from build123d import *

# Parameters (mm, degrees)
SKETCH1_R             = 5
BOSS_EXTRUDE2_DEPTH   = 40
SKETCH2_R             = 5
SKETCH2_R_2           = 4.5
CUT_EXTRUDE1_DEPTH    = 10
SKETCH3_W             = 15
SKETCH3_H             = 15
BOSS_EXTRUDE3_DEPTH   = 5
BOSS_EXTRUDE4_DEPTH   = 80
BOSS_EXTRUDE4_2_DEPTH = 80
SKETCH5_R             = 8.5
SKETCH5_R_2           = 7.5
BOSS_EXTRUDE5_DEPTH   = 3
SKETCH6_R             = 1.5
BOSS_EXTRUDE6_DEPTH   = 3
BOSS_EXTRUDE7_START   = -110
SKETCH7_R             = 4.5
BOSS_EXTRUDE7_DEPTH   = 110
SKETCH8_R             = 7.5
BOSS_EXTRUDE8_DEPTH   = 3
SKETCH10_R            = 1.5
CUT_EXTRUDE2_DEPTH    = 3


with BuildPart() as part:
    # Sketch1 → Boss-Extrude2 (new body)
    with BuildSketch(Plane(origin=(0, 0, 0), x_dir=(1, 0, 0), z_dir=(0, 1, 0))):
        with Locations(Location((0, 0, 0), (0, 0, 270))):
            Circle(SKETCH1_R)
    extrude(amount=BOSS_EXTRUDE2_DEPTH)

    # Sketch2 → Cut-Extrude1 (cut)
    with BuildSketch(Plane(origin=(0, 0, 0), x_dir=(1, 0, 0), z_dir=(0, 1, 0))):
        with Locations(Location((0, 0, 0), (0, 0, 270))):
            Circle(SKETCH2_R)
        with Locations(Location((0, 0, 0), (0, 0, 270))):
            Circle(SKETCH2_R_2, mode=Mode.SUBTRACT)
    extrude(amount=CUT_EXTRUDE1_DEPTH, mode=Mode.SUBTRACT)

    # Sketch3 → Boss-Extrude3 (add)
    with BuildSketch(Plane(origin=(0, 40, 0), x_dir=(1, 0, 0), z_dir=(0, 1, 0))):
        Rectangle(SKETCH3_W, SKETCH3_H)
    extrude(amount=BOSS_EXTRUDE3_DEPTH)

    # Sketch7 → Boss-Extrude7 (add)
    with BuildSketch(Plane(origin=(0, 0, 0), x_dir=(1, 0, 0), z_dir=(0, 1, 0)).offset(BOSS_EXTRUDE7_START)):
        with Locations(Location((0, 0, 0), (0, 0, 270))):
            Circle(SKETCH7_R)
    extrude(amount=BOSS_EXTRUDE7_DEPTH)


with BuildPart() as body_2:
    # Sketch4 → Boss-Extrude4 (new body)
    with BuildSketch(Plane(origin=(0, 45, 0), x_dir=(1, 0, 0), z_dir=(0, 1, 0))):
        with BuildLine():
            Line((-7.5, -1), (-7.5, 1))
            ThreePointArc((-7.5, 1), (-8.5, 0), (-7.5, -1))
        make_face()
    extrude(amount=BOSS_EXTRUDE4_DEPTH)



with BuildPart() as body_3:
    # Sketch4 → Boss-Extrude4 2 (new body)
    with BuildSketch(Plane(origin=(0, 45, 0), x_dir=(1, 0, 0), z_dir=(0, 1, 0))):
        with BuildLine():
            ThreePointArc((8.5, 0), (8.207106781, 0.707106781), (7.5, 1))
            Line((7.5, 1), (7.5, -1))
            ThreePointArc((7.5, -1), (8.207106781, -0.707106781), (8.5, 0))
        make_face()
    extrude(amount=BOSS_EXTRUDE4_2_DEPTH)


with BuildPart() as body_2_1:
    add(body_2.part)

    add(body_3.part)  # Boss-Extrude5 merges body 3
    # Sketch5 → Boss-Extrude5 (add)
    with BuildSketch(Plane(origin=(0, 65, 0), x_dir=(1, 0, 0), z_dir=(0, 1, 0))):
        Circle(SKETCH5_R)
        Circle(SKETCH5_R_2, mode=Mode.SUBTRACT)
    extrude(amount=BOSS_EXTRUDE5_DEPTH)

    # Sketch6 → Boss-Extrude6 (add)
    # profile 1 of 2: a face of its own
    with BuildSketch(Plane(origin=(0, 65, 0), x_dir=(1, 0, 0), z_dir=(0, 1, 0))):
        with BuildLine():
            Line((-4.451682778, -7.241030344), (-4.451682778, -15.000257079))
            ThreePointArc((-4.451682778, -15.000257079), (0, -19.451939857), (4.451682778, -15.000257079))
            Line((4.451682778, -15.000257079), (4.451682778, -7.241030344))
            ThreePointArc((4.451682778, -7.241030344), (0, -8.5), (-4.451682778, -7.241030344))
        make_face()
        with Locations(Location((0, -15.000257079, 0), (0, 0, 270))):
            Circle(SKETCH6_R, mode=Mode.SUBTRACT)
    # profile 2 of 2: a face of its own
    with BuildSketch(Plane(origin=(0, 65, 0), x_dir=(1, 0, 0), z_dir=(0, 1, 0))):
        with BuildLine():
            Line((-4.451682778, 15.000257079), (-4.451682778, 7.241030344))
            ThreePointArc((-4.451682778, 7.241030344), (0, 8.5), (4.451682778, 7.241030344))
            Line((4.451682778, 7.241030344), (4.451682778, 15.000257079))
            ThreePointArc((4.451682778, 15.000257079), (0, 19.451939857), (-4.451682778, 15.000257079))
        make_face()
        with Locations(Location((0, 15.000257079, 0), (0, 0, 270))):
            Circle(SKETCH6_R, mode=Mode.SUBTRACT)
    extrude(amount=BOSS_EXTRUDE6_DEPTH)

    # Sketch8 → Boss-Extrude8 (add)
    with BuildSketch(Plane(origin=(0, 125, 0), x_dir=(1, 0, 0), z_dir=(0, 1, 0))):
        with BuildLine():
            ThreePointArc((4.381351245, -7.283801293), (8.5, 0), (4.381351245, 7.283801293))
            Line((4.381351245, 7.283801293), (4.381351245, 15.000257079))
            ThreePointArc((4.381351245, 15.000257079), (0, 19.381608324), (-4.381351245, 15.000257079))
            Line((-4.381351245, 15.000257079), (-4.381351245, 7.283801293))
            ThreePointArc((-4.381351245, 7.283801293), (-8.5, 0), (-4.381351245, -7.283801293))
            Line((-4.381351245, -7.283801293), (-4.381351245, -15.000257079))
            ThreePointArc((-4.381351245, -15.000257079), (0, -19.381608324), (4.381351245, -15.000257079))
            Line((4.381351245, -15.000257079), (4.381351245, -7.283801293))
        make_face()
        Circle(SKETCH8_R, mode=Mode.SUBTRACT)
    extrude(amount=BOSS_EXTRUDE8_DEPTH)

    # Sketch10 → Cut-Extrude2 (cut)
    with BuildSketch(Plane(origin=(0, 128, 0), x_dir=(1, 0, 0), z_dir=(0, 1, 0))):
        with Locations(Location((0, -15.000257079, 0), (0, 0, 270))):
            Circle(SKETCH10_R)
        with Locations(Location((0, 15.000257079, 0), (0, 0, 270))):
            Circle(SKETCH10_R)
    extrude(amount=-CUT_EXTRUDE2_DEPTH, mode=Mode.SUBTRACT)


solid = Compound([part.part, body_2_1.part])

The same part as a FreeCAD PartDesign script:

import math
import FreeCAD as App
import Part
import Sketcher
Q = App.Units.Quantity


def add_polygon(sketch, points):
    """Adds a closed chain of lines whose ends are joined by coincident constraints."""
    first, n = sketch.GeometryCount, len(points)
    for a, b in zip(points, points[1:] + points[:1]):
        sketch.addGeometry(Part.LineSegment(App.Vector(*a, 0), App.Vector(*b, 0)), False)
    for i in range(n):
        sketch.addConstraint(Sketcher.Constraint("Coincident", first + i, 2, first + (i + 1) % n, 1))

doc = App.newDocument("Part")
params = doc.addObject("Spreadsheet::Sheet", "Params")
for row, (alias, value) in enumerate([
    ("sketch1_diameter", "10 mm"),
    ("pad1_length", "40 mm"),
    ("sketch2_diameter", "10 mm"),
    ("sketch2_diameter2", "9 mm"),
    ("pocket1_length", "10 mm"),
    ("sketch3_width", "15 mm"),
    ("pad2_length", "5 mm"),
    ("sketch4_diameter", "9 mm"),
    ("pad3_length", "110 mm"),
    ("sketch5_radius", "1 mm"),
    ("pad4_length", "80 mm"),
    ("sketch6_radius", "1 mm"),
    ("pad5_length", "80 mm"),
    ("sketch7_diameter", "17 mm"),
    ("sketch7_diameter2", "15 mm"),
    ("pad6_length", "3 mm"),
    ("sketch8_diameter", "3 mm"),
    ("sketch8_radius", "8.5 mm"),
    ("pad7_length", "3 mm"),
    ("sketch9_diameter", "15 mm"),
    ("sketch9_radius", "8.5 mm"),
    ("pad8_length", "3 mm"),
    ("sketch10_diameter", "3 mm"),
    ("pocket2_length", "3 mm"),
], start=1):
    params.set(f"A{row}", alias)
    params.set(f"B{row}", "=" + value)
    params.setAlias(f"B{row}", alias)

body = doc.addObject("PartDesign::Body", "Body")

sketch1 = body.newObject("Sketcher::SketchObject", "Sketch")
sketch1.AttachmentSupport = (doc.getObject("XZ_Plane"), [""])
sketch1.MapMode = "FlatFace"
sketch1.addGeometry(Part.Circle(App.Vector(0, 0, 0), App.Vector(0, 0, 1), 5), False)
sketch1.addConstraint([
    Sketcher.Constraint("Coincident", 0, 3, -1, 1),
    Sketcher.Constraint("Diameter", 0, Q("10 mm")),
])
sketch1.setExpression("Constraints[1]", "Params.sketch1_diameter")
pad1 = body.newObject("PartDesign::Pad", "Pad")
pad1.Profile = sketch1
pad1.setExpression("Length", "Params.pad1_length")
pad1.Reversed = True

sketch2 = body.newObject("Sketcher::SketchObject", "Sketch001")
sketch2.AttachmentSupport = (doc.getObject("XZ_Plane"), [""])
sketch2.MapMode = "FlatFace"
sketch2.addGeometry([
    Part.Circle(App.Vector(0, 0, 0), App.Vector(0, 0, 1), 5),
    Part.Circle(App.Vector(0, 0, 0), App.Vector(0, 0, 1), 4.5),
], False)
sketch2.addConstraint([
    Sketcher.Constraint("Coincident", 0, 3, -1, 1),
    Sketcher.Constraint("Coincident", 1, 3, -1, 1),
    Sketcher.Constraint("Diameter", 0, Q("10 mm")),
    Sketcher.Constraint("Diameter", 1, Q("9 mm")),
])
sketch2.setExpression("Constraints[2]", "Params.sketch2_diameter")
sketch2.setExpression("Constraints[3]", "Params.sketch2_diameter2")
pocket1 = body.newObject("PartDesign::Pocket", "Pocket")
pocket1.Profile = sketch2
pocket1.setExpression("Length", "Params.pocket1_length")

sketch3 = body.newObject("Sketcher::SketchObject", "Sketch002")
sketch3.AttachmentSupport = (doc.getObject("XZ_Plane"), [""])
sketch3.MapMode = "FlatFace"
sketch3.AttachmentOffset = App.Placement(App.Vector(0, 0, -40), App.Rotation())
add_polygon(sketch3, [(-8, -8), (-8, 8), (8, 8), (8, -8)])
sketch3.addConstraint([
    Sketcher.Constraint("Vertical", 0),
    Sketcher.Constraint("Horizontal", 1),
    Sketcher.Constraint("Vertical", 2),
    Sketcher.Constraint("Horizontal", 3),
    Sketcher.Constraint("Symmetric", 0, 2, 2, 2, -1, 1),
    Sketcher.Constraint("Equal", 3, 0),
    Sketcher.Constraint("DistanceX", 1, 1, 1, 2, Q("15 mm")),
])
sketch3.setExpression("Constraints[10]", "Params.sketch3_width")
pad2 = body.newObject("PartDesign::Pad", "Pad001")
pad2.Profile = sketch3
pad2.setExpression("Length", "Params.pad2_length")
pad2.Reversed = True

sketch4 = body.newObject("Sketcher::SketchObject", "Sketch003")
sketch4.AttachmentSupport = (doc.getObject("XZ_Plane"), [""])
sketch4.MapMode = "FlatFace"
sketch4.AttachmentOffset = App.Placement(App.Vector(0, 0, 110), App.Rotation())
sketch4.addGeometry(Part.Circle(App.Vector(0, 0, 0), App.Vector(0, 0, 1), 4.5), False)
sketch4.addConstraint([
    Sketcher.Constraint("Coincident", 0, 3, -1, 1),
    Sketcher.Constraint("Diameter", 0, Q("9 mm")),
])
sketch4.setExpression("Constraints[1]", "Params.sketch4_diameter")
pad3 = body.newObject("PartDesign::Pad", "Pad002")
pad3.Profile = sketch4
pad3.setExpression("Length", "Params.pad3_length")
pad3.Reversed = True
body2 = doc.addObject("PartDesign::Body", "Body001")

sketch5 = body2.newObject("Sketcher::SketchObject", "Sketch004")
sketch5.AttachmentSupport = (doc.getObject("XZ_Plane001"), [""])
sketch5.MapMode = "FlatFace"
sketch5.AttachmentOffset = App.Placement(App.Vector(0, 0, -45), App.Rotation())
sketch5.addGeometry([
    Part.LineSegment(App.Vector(-7.5, 1, 0), App.Vector(-7.5, -1, 0)),
    Part.ArcOfCircle(Part.Circle(App.Vector(-7.5, 0, 0), App.Vector(0, 0, 1), 1), math.radians(90), math.radians(270)),
], False)
sketch5.addConstraint([
    Sketcher.Constraint("Coincident", 0, 1, 1, 1),
    Sketcher.Constraint("Coincident", 1, 2, 0, 2),
    Sketcher.Constraint("Vertical", 0),
    Sketcher.Constraint("PointOnObject", 1, 3, -1),
    Sketcher.Constraint("Vertical", 1, 3, 0, 1),
    Sketcher.Constraint("Radius", 1, Q("1 mm")),
    Sketcher.Constraint("DistanceX", 1, 3, -1, 1, Q("7.5 mm")),
])
sketch5.setExpression("Constraints[5]", "Params.sketch5_radius")
pad4 = body2.newObject("PartDesign::Pad", "Pad003")
pad4.Profile = sketch5
pad4.setExpression("Length", "Params.pad4_length")
pad4.Reversed = True
body3 = doc.addObject("PartDesign::Body", "Body002")

sketch6 = body3.newObject("Sketcher::SketchObject", "Sketch005")
sketch6.AttachmentSupport = (doc.getObject("XZ_Plane002"), [""])
sketch6.MapMode = "FlatFace"
sketch6.AttachmentOffset = App.Placement(App.Vector(0, 0, -45), App.Rotation())
sketch6.addGeometry([
    Part.ArcOfCircle(Part.Circle(App.Vector(7.5, 0, 0), App.Vector(0, 0, 1), 1), math.radians(-90), math.radians(0)),
    Part.LineSegment(App.Vector(7.5, -1, 0), App.Vector(7.5, 1, 0)),
    Part.ArcOfCircle(Part.Circle(App.Vector(7.5, 0, 0), App.Vector(0, 0, 1), 1), math.radians(0), math.radians(90)),
], False)
sketch6.addConstraint([
    Sketcher.Constraint("Coincident", 0, 1, 1, 1),
    Sketcher.Constraint("Coincident", 1, 2, 2, 2),
    Sketcher.Constraint("Tangent", 2, 1, 0, 2),
    Sketcher.Constraint("Vertical", 1),
    Sketcher.Constraint("Equal", 0, 2),
    Sketcher.Constraint("PointOnObject", 0, 3, -1),
    Sketcher.Constraint("PointOnObject", 2, 1, -1),
    Sketcher.Constraint("Vertical", 2, 3, 0, 1),
    Sketcher.Constraint("Radius", 0, Q("1 mm")),
    Sketcher.Constraint("DistanceX", -1, 1, 0, 3, Q("7.5 mm")),
])
sketch6.setExpression("Constraints[8]", "Params.sketch6_radius")
pad5 = body3.newObject("PartDesign::Pad", "Pad004")
pad5.Profile = sketch6
pad5.setExpression("Length", "Params.pad5_length")
pad5.Reversed = True
body2.AllowCompound = True
doc.recompute()

boolean = body2.newObject("PartDesign::Boolean", "Boolean")
boolean.Type = "Fuse"
boolean.addObjects([body3])

sketch7 = body2.newObject("Sketcher::SketchObject", "Sketch006")
sketch7.AttachmentSupport = (doc.getObject("XZ_Plane001"), [""])
sketch7.MapMode = "FlatFace"
sketch7.AttachmentOffset = App.Placement(App.Vector(0, 0, -65), App.Rotation())
sketch7.addGeometry([
    Part.Circle(App.Vector(0, 0, 0), App.Vector(0, 0, 1), 8),
    Part.Circle(App.Vector(0, 0, 0), App.Vector(0, 0, 1), 8),
], False)
sketch7.addConstraint([
    Sketcher.Constraint("Coincident", 0, 3, -1, 1),
    Sketcher.Constraint("Coincident", 1, 3, -1, 1),
    Sketcher.Constraint("Diameter", 0, Q("17 mm")),
    Sketcher.Constraint("Diameter", 1, Q("15 mm")),
])
sketch7.setExpression("Constraints[2]", "Params.sketch7_diameter")
sketch7.setExpression("Constraints[3]", "Params.sketch7_diameter2")
pad6 = body2.newObject("PartDesign::Pad", "Pad005")
pad6.Profile = sketch7
pad6.setExpression("Length", "Params.pad6_length")
pad6.Reversed = True

sketch8 = body2.newObject("Sketcher::SketchObject", "Sketch007")
sketch8.AttachmentSupport = (doc.getObject("XZ_Plane001"), [""])
sketch8.MapMode = "FlatFace"
sketch8.AttachmentOffset = App.Placement(App.Vector(0, 0, -65), App.Rotation())
sketch8.addGeometry([
    Part.LineSegment(App.Vector(-4.5, 7.2, 0), App.Vector(-4.5, 15, 0)),
    Part.ArcOfCircle(Part.Circle(App.Vector(0, 15, 0), App.Vector(0, 0, 1), 4.5), math.radians(0), math.radians(180)),
    Part.LineSegment(App.Vector(4.5, 15, 0), App.Vector(4.5, 7.2, 0)),
    Part.ArcOfCircle(Part.Circle(App.Vector(0, 0, 0), App.Vector(0, 0, 1), 8.5), math.radians(58), math.radians(122)),
    Part.Circle(App.Vector(0, 15, 0), App.Vector(0, 0, 1), 1.5),
    Part.LineSegment(App.Vector(-4.5, -15, 0), App.Vector(-4.5, -7.2, 0)),
    Part.ArcOfCircle(Part.Circle(App.Vector(0, 0, 0), App.Vector(0, 0, 1), 8.5), math.radians(-122), math.radians(-58)),
    Part.LineSegment(App.Vector(4.5, -7.2, 0), App.Vector(4.5, -15, 0)),
    Part.ArcOfCircle(Part.Circle(App.Vector(0, -15, 0), App.Vector(0, 0, 1), 4.5), math.radians(180), math.radians(360)),
    Part.Circle(App.Vector(0, -15, 0), App.Vector(0, 0, 1), 1.5),
], False)
sketch8.addConstraint([
    Sketcher.Constraint("Tangent", 0, 2, 1, 2),
    Sketcher.Constraint("Tangent", 1, 1, 2, 1),
    Sketcher.Constraint("Coincident", 2, 2, 3, 1),
    Sketcher.Constraint("Coincident", 3, 2, 0, 1),
    Sketcher.Constraint("Coincident", 5, 2, 6, 1),
    Sketcher.Constraint("Coincident", 6, 2, 7, 1),
    Sketcher.Constraint("Tangent", 7, 2, 8, 2),
    Sketcher.Constraint("Tangent", 8, 1, 5, 1),
    Sketcher.Constraint("Vertical", 0),
    Sketcher.Constraint("Vertical", 2),
    Sketcher.Constraint("Vertical", 5),
    Sketcher.Constraint("Vertical", 7),
    Sketcher.Constraint("Coincident", 3, 3, -1, 1),
    Sketcher.Constraint("Coincident", 6, 3, -1, 1),
    Sketcher.Constraint("Coincident", 4, 3, 1, 3),
    Sketcher.Constraint("Coincident", 9, 3, 8, 3),
    Sketcher.Constraint("Equal", 3, 6),
    Sketcher.Constraint("Equal", 1, 8),
    Sketcher.Constraint("Equal", 4, 9),
    Sketcher.Constraint("Symmetric", 1, 3, 8, 3, -1, 1),
    Sketcher.Constraint("PointOnObject", 1, 3, -2),
    Sketcher.Constraint("Diameter", 4, Q("3 mm")),
    Sketcher.Constraint("Radius", 3, Q("8.5 mm")),
    Sketcher.Constraint("Radius", 1, Q("4.451683 mm")),
    Sketcher.Constraint("DistanceY", 0, 1, 0, 2, Q("7.759227 mm")),
])
sketch8.setExpression("Constraints[21]", "Params.sketch8_diameter")
sketch8.setExpression("Constraints[22]", "Params.sketch8_radius")
pad7 = body2.newObject("PartDesign::Pad", "Pad006")
pad7.Profile = sketch8
pad7.setExpression("Length", "Params.pad7_length")
pad7.Reversed = True

sketch9 = body2.newObject("Sketcher::SketchObject", "Sketch008")
sketch9.AttachmentSupport = (doc.getObject("XZ_Plane001"), [""])
sketch9.MapMode = "FlatFace"
sketch9.AttachmentOffset = App.Placement(App.Vector(0, 0, -125), App.Rotation())
sketch9.addGeometry([
    Part.ArcOfCircle(Part.Circle(App.Vector(0, 0, 0), App.Vector(0, 0, 1), 8.5), math.radians(-59), math.radians(59)),
    Part.LineSegment(App.Vector(4.4, -7.3, 0), App.Vector(4.4, -15, 0)),
    Part.ArcOfCircle(Part.Circle(App.Vector(0, -15, 0), App.Vector(0, 0, 1), 4.4), math.radians(180), math.radians(360)),
    Part.LineSegment(App.Vector(-4.4, -15, 0), App.Vector(-4.4, -7.3, 0)),
    Part.ArcOfCircle(Part.Circle(App.Vector(0, 0, 0), App.Vector(0, 0, 1), 8.5), math.radians(121), math.radians(239)),
    Part.LineSegment(App.Vector(-4.4, 7.3, 0), App.Vector(-4.4, 15, 0)),
    Part.ArcOfCircle(Part.Circle(App.Vector(0, 15, 0), App.Vector(0, 0, 1), 4.4), math.radians(0), math.radians(180)),
    Part.LineSegment(App.Vector(4.4, 15, 0), App.Vector(4.4, 7.3, 0)),
    Part.Circle(App.Vector(0, 0, 0), App.Vector(0, 0, 1), 7.5),
], False)
sketch9.addConstraint([
    Sketcher.Constraint("Coincident", 0, 1, 1, 1),
    Sketcher.Constraint("Tangent", 1, 2, 2, 2),
    Sketcher.Constraint("Tangent", 2, 1, 3, 1),
    Sketcher.Constraint("Coincident", 3, 2, 4, 2),
    Sketcher.Constraint("Coincident", 4, 1, 5, 1),
    Sketcher.Constraint("Tangent", 5, 2, 6, 2),
    Sketcher.Constraint("Tangent", 6, 1, 7, 1),
    Sketcher.Constraint("Coincident", 7, 2, 0, 2),
    Sketcher.Constraint("Vertical", 1),
    Sketcher.Constraint("Vertical", 3),
    Sketcher.Constraint("Vertical", 5),
    Sketcher.Constraint("Vertical", 7),
    Sketcher.Constraint("Coincident", 0, 3, -1, 1),
    Sketcher.Constraint("Coincident", 4, 3, -1, 1),
    Sketcher.Constraint("Coincident", 8, 3, -1, 1),
    Sketcher.Constraint("Equal", 0, 4),
    Sketcher.Constraint("Equal", 2, 6),
    Sketcher.Constraint("Symmetric", 2, 3, 6, 3, -1, 1),
    Sketcher.Constraint("PointOnObject", 2, 3, -2),
    Sketcher.Constraint("Diameter", 8, Q("15 mm")),
    Sketcher.Constraint("Radius", 0, Q("8.5 mm")),
    Sketcher.Constraint("Radius", 2, Q("4.381351 mm")),
    Sketcher.Constraint("DistanceY", 1, 2, 1, 1, Q("7.716456 mm")),
])
sketch9.setExpression("Constraints[19]", "Params.sketch9_diameter")
sketch9.setExpression("Constraints[20]", "Params.sketch9_radius")
pad8 = body2.newObject("PartDesign::Pad", "Pad007")
pad8.Profile = sketch9
pad8.setExpression("Length", "Params.pad8_length")
pad8.Reversed = True

sketch10 = body2.newObject("Sketcher::SketchObject", "Sketch009")
sketch10.AttachmentSupport = (doc.getObject("XZ_Plane001"), [""])
sketch10.MapMode = "FlatFace"
sketch10.AttachmentOffset = App.Placement(App.Vector(0, 0, -128), App.Rotation())
sketch10.addGeometry([
    Part.Circle(App.Vector(0, 15, 0), App.Vector(0, 0, 1), 1.5),
    Part.Circle(App.Vector(0, -15, 0), App.Vector(0, 0, 1), 1.5),
], False)
sketch10.addConstraint([
    Sketcher.Constraint("Equal", 0, 1),
    Sketcher.Constraint("Symmetric", 0, 3, 1, 3, -1, 1),
    Sketcher.Constraint("PointOnObject", 0, 3, -2),
    Sketcher.Constraint("Diameter", 0, Q("3 mm")),
    Sketcher.Constraint("DistanceY", -1, 1, 0, 3, Q("15.000257 mm")),
])
sketch10.setExpression("Constraints[3]", "Params.sketch10_diameter")
pocket2 = body2.newObject("PartDesign::Pocket", "Pocket001")
pocket2.Profile = sketch10
pocket2.setExpression("Length", "Params.pocket2_length")
pocket2.Reversed = True

doc.recompute()
